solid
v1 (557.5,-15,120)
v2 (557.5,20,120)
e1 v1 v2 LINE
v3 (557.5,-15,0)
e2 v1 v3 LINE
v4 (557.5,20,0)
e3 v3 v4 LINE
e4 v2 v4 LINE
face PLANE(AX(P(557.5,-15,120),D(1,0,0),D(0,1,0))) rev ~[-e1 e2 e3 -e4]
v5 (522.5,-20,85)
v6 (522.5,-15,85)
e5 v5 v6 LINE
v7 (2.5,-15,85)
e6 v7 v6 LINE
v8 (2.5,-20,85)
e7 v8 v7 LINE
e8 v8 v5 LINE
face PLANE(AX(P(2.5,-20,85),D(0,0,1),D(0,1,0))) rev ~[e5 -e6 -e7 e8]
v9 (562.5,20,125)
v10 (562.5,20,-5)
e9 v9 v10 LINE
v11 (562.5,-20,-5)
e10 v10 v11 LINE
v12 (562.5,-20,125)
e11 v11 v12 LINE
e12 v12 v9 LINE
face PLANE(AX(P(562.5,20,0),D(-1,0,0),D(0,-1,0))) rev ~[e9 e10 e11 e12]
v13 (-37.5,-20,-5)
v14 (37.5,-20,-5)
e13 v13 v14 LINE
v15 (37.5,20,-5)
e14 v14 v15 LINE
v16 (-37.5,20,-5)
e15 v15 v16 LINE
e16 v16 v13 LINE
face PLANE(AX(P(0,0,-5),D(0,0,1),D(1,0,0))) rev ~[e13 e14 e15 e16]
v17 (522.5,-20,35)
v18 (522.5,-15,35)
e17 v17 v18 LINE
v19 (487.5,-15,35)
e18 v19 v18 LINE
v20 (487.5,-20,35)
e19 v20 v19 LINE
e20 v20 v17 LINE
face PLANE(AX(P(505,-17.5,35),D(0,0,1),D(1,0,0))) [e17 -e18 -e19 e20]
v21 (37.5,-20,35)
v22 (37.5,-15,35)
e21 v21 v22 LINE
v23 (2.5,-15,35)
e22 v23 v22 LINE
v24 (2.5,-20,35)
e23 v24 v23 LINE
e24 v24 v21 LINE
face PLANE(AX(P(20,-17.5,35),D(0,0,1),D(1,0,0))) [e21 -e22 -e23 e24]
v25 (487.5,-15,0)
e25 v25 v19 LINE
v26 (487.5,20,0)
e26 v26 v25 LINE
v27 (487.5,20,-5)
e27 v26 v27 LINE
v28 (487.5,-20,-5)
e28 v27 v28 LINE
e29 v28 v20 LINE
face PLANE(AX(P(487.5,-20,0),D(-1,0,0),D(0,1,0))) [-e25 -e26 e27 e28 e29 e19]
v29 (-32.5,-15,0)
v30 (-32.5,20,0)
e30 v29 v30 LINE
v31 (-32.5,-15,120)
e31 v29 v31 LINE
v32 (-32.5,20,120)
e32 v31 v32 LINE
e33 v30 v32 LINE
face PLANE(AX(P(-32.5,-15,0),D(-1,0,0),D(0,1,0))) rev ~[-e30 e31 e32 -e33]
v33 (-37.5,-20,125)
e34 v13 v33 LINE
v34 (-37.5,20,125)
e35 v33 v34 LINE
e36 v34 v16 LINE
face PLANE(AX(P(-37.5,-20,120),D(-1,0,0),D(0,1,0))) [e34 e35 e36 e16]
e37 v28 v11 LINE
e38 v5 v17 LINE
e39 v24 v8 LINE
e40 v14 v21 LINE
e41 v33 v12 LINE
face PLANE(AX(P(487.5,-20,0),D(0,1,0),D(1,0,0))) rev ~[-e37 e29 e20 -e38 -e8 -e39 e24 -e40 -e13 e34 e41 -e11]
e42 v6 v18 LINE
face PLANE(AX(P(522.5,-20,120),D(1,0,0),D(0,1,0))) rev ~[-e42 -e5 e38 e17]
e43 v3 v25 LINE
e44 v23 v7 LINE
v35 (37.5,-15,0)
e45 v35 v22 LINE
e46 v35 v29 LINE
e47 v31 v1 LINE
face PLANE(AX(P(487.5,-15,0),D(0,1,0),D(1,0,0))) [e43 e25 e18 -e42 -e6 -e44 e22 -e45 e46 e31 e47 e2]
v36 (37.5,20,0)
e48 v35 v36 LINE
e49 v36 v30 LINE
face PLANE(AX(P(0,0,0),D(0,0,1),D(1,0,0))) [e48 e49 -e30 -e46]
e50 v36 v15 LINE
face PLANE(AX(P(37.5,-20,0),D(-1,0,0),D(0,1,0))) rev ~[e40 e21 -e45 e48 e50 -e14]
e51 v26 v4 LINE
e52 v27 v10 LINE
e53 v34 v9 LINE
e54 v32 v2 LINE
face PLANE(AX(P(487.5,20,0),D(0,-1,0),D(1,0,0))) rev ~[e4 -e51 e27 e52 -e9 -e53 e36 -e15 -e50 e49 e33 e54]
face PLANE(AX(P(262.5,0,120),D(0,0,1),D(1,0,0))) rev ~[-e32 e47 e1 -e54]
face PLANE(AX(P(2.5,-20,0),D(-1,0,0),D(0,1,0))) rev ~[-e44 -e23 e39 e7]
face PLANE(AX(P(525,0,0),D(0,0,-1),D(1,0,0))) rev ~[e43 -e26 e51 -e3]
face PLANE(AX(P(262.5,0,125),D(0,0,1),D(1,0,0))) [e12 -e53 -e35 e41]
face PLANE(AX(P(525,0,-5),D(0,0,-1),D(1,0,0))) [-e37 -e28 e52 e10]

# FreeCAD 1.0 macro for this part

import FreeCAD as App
import Part
import Sketcher


def add_polygon(sketch, points):
    """Adds a closed chain of lines whose ends are joined by coincident constraints."""
    first, n = sketch.GeometryCount, len(points)
    for a, b in zip(points, points[1:] + points[:1]):
        sketch.addGeometry(Part.LineSegment(App.Vector(*a, 0), App.Vector(*b, 0)), False)
    for i in range(n):
        sketch.addConstraint(Sketcher.Constraint("Coincident", first + i, 2, first + (i + 1) % n, 1))

doc = App.newDocument("Part")
body = doc.addObject("PartDesign::Body", "Body")

# Sketch on XY plane
sketch1 = body.newObject("Sketcher::SketchObject", "Sketch")
sketch1.AttachmentSupport = (doc.getObject("XY_Plane"), [""])
sketch1.MapMode = "FlatFace"
add_polygon(sketch1, [(38, -20), (38, 20), (-38, 20), (-38, -20)])  # lines 0-3
sketch1.addConstraint([
    Sketcher.Constraint("Vertical", 0),
    Sketcher.Constraint("Horizontal", 1),
    Sketcher.Constraint("Vertical", 2),
    Sketcher.Constraint("Horizontal", 3),
    Sketcher.Constraint("Symmetric", 0, 2, 2, 2, -1, 1),
    Sketcher.Constraint("DistanceX", 1, 2, 1, 1, 75.0),
    Sketcher.Constraint("DistanceY", 0, 1, 0, 2, 40.0),
])
pad1 = body.newObject("PartDesign::Pad", "Pad")
pad1.Profile = sketch1
pad1.Length = 5
pad1.Reversed = True

# Sketch on XY plane
sketch2 = body.newObject("Sketcher::SketchObject", "Sketch001")
sketch2.AttachmentSupport = (doc.getObject("XY_Plane"), [""])
sketch2.MapMode = "FlatFace"
add_polygon(sketch2, [(-32, 20), (-38, 20), (-38, -20), (2, -20), (2, -15), (-32, -15)])  # lines 0-5
sketch2.addConstraint([
    Sketcher.Constraint("Horizontal", 0),
    Sketcher.Constraint("Vertical", 1),
    Sketcher.Constraint("Horizontal", 2),
    Sketcher.Constraint("Vertical", 3),
    Sketcher.Constraint("Horizontal", 4),
    Sketcher.Constraint("Vertical", 5),
    Sketcher.Constraint("Equal", 2, 1),
    Sketcher.Constraint("Equal", 0, 3),
    Sketcher.Constraint("DistanceX", 0, 2, 0, 1, 5.0),
    Sketcher.Constraint("DistanceX", 2, 1, 2, 2, 40.0),
    Sketcher.Constraint("DistanceY", -1, 1, 0, 2, 20.0),
    Sketcher.Constraint("DistanceX", 0, 2, -1, 1, 37.5),
])
pad2 = body.newObject("PartDesign::Pad", "Pad001")
pad2.Profile = sketch2
pad2.Length = 120

# Sketch on XY plane
sketch3 = body.newObject("Sketcher::SketchObject", "Sketch002")
sketch3.AttachmentSupport = (doc.getObject("XY_Plane"), [""])
sketch3.MapMode = "FlatFace"
sketch3.AttachmentOffset = App.Placement(App.Vector(0, 0, 120), App.Rotation())
add_polygon(sketch3, [(-38, 20), (-38, -20), (562, -20), (562, 20)])  # lines 0-3
sketch3.addConstraint([
    Sketcher.Constraint("Vertical", 0),
    Sketcher.Constraint("Horizontal", 1),
    Sketcher.Constraint("Vertical", 2),
    Sketcher.Constraint("Horizontal", 3),
    Sketcher.Constraint("DistanceX", 1, 1, 1, 2, 600.0),
    Sketcher.Constraint("DistanceY", 0, 2, 0, 1, 40.0),
    Sketcher.Constraint("DistanceY", 0, 2, -1, 1, 20.0),
    Sketcher.Constraint("DistanceX", 0, 2, -1, 1, 37.5),
])
pad3 = body.newObject("PartDesign::Pad", "Pad002")
pad3.Profile = sketch3
pad3.Length = 5

# Sketch on XY plane
sketch4 = body.newObject("Sketcher::SketchObject", "Sketch003")
sketch4.AttachmentSupport = (doc.getObject("XY_Plane"), [""])
sketch4.MapMode = "FlatFace"
sketch4.AttachmentOffset = App.Placement(App.Vector(0, 0, 120), App.Rotation())
add_polygon(sketch4, [(558, 20), (562, 20), (562, -20), (522, -20), (522, -15), (558, -15)])  # lines 0-5
sketch4.addConstraint([
    Sketcher.Constraint("Horizontal", 0),
    Sketcher.Constraint("Vertical", 1),
    Sketcher.Constraint("Horizontal", 2),
    Sketcher.Constraint("Vertical", 3),
    Sketcher.Constraint("Horizontal", 4),
    Sketcher.Constraint("Vertical", 5),
    Sketcher.Constraint("Equal", 2, 1),
    Sketcher.Constraint("Equal", 0, 3),
    Sketcher.Constraint("DistanceX", 0, 1, 0, 2, 5.0),
    Sketcher.Constraint("DistanceX", 2, 2, 2, 1, 40.0),
    Sketcher.Constraint("DistanceY", -1, 1, 0, 2, 20.0),
    Sketcher.Constraint("DistanceX", -1, 1, 0, 2, 562.5),
])
pad4 = body.newObject("PartDesign::Pad", "Pad003")
pad4.Profile = sketch4
pad4.Length = 120
pad4.Reversed = True

# Sketch on XY plane
sketch5 = body.newObject("Sketcher::SketchObject", "Sketch004")
sketch5.AttachmentSupport = (doc.getObject("XY_Plane"), [""])
sketch5.MapMode = "FlatFace"
add_polygon(sketch5, [(488, -20), (488, 20), (562, 20), (562, -20)])  # lines 0-3
sketch5.addConstraint([
    Sketcher.Constraint("Vertical", 0),
    Sketcher.Constraint("Horizontal", 1),
    Sketcher.Constraint("Vertical", 2),
    Sketcher.Constraint("Horizontal", 3),
    Sketcher.Constraint("DistanceX", 1, 1, 1, 2, 75.0),
    Sketcher.Constraint("DistanceY", 0, 1, 0, 2, 40.0),
    Sketcher.Constraint("DistanceY", -1, 1, 0, 2, 20.0),
    Sketcher.Constraint("DistanceX", -1, 1, 0, 2, 487.5),
])
pad5 = body.newObject("PartDesign::Pad", "Pad004")
pad5.Profile = sketch5
pad5.Length = 5
pad5.Reversed = True

# Sketch on YZ plane
sketch6 = body.newObject("Sketcher::SketchObject", "Sketch005")
sketch6.AttachmentSupport = (doc.getObject("YZ_Plane"), [""])
sketch6.MapMode = "FlatFace"
sketch6.AttachmentOffset = App.Placement(App.Vector(0, 0, 2.5), App.Rotation())
add_polygon(sketch6, [(-20, 120), (-20, 85), (-15, 85), (-15, 120)])  # lines 0-3
sketch6.addConstraint([
    Sketcher.Constraint("Vertical", 0),
    Sketcher.Constraint("Horizontal", 1),
    Sketcher.Constraint("Vertical", 2),
    Sketcher.Constraint("Horizontal", 3),
    Sketcher.Constraint("DistanceX", 1, 1, 1, 2, 5.0),
    Sketcher.Constraint("DistanceY", 0, 2, 0, 1, 35.0),
    Sketcher.Constraint("DistanceX", 0, 2, -1, 1, 20.0),
    Sketcher.Constraint("DistanceY", -1, 1, 0, 2, 85.0),
])
pad6 = body.newObject("PartDesign::Pad", "Pad005")
pad6.Profile = sketch6
pad6.Length = 520

# Sketch on XY plane
sketch7 = body.newObject("Sketcher::SketchObject", "Sketch006")
sketch7.AttachmentSupport = (doc.getObject("XY_Plane"), [""])
sketch7.MapMode = "FlatFace"
add_polygon(sketch7, [(2, -15), (2, -20), (38, -20), (38, -15)])  # lines 0-3
sketch7.addConstraint([
    Sketcher.Constraint("Vertical", 0),
    Sketcher.Constraint("Horizontal", 1),
    Sketcher.Constraint("Vertical", 2),
    Sketcher.Constraint("Horizontal", 3),
    Sketcher.Constraint("DistanceX", 1, 1, 1, 2, 35.0),
    Sketcher.Constraint("DistanceY", 0, 2, 0, 1, 5.0),
    Sketcher.Constraint("DistanceY", 0, 2, -1, 1, 20.0),
    Sketcher.Constraint("DistanceX", -1, 1, 0, 2, 2.5),
])
pad7 = body.newObject("PartDesign::Pad", "Pad006")
pad7.Profile = sketch7
pad7.Length = 35

# Sketch on XY plane
sketch8 = body.newObject("Sketcher::SketchObject", "Sketch007")
sketch8.AttachmentSupport = (doc.getObject("XY_Plane"), [""])
sketch8.MapMode = "FlatFace"
add_polygon(sketch8, [(488, -15), (488, -20), (522, -20), (522, -15)])  # lines 0-3
sketch8.addConstraint([
    Sketcher.Constraint("Vertical", 0),
    Sketcher.Constraint("Horizontal", 1),
    Sketcher.Constraint("Vertical", 2),
    Sketcher.Constraint("Horizontal", 3),
    Sketcher.Constraint("DistanceX", 1, 1, 1, 2, 35.0),
    Sketcher.Constraint("DistanceY", 0, 2, 0, 1, 5.0),
    Sketcher.Constraint("DistanceY", 0, 2, -1, 1, 20.0),
    Sketcher.Constraint("DistanceX", -1, 1, 0, 2, 487.5),
])
pad8 = body.newObject("PartDesign::Pad", "Pad007")
pad8.Profile = sketch8
pad8.Length = 35

doc.recompute()
